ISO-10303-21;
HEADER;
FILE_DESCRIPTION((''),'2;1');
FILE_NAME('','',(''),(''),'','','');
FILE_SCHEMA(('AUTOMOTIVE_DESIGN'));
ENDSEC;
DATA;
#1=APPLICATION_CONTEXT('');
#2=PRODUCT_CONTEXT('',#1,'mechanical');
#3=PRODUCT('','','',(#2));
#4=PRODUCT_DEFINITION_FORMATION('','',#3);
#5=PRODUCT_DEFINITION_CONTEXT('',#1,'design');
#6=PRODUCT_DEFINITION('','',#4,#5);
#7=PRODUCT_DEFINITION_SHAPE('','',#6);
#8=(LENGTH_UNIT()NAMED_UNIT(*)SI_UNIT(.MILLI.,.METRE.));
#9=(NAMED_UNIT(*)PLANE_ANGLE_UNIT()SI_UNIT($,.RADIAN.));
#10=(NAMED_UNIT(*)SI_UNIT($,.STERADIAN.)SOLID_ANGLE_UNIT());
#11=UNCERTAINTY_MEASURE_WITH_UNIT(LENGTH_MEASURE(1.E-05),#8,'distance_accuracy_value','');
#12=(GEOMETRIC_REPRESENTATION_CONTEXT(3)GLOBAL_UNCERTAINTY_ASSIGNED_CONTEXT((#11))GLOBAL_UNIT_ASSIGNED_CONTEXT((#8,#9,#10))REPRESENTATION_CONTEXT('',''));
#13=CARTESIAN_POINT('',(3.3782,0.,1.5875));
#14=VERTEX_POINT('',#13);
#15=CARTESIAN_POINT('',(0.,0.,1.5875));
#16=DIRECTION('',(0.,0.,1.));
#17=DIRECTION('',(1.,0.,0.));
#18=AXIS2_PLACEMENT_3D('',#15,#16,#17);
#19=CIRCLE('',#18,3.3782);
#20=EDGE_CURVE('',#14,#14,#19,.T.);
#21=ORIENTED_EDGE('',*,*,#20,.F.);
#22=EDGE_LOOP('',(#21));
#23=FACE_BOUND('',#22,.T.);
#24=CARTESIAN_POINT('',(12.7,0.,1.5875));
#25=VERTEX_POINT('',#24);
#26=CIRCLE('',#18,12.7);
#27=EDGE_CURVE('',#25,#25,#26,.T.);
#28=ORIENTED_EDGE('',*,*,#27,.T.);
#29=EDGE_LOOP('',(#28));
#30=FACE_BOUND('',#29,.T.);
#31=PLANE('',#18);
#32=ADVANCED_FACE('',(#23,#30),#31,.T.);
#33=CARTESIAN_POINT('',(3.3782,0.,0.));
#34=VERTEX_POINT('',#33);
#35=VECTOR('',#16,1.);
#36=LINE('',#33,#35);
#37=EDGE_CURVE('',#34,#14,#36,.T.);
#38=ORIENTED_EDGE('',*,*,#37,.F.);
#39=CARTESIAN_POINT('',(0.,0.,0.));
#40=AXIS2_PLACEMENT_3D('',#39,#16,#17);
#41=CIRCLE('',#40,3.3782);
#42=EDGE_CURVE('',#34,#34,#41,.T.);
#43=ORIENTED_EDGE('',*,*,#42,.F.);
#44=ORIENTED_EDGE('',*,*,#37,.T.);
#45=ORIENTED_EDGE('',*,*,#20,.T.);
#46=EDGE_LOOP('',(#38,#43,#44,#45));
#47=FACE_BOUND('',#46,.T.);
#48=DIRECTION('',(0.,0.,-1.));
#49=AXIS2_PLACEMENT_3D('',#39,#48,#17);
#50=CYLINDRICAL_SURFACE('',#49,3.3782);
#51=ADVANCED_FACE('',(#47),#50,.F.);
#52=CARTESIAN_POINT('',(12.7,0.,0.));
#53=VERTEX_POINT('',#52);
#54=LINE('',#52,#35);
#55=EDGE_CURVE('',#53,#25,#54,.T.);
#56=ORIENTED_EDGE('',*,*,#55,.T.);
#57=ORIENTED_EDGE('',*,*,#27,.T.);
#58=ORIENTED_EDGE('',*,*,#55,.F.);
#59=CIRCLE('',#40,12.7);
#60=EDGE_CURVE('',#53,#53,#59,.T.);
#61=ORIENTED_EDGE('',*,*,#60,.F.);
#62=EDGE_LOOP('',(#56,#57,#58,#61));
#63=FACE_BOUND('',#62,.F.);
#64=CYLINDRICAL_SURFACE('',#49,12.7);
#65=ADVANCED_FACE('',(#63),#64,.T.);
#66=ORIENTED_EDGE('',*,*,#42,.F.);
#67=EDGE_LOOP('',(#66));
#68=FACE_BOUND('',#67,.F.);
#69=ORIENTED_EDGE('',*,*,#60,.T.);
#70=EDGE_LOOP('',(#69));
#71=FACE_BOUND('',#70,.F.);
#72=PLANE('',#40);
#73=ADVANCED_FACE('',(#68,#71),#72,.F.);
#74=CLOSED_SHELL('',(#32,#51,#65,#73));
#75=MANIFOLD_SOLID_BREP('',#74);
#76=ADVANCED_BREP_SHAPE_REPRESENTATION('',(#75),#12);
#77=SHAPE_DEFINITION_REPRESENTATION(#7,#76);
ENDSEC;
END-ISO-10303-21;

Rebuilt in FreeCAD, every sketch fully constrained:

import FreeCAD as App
import Part
import Sketcher
from FreeCAD import Vector
Q = App.Units.Quantity

doc = App.newDocument("Part")
body = doc.addObject("PartDesign::Body", "Body")

sketch1 = body.newObject("Sketcher::SketchObject", "Sketch")
sketch1.AttachmentSupport = (doc.getObject("XY_Plane"), [""])
sketch1.MapMode = "FlatFace"
sketch1.addGeometry([
    Part.Circle(Vector(0, 0, 0), Vector(0, 0, 1), 12.7),
    Part.Circle(Vector(0, 0, 0), Vector(0, 0, 1), 3.4),
], False)
sketch1.addConstraint([
    Sketcher.Constraint("Coincident", 0, 3, -1, 1),
    Sketcher.Constraint("Coincident", 1, 3, -1, 1),
    Sketcher.Constraint("Diameter", 0, Q("1 in")),
    Sketcher.Constraint("Diameter", 1, Q("0.266 in")),
])
pad1 = body.newObject("PartDesign::Pad", "Pad")
pad1.Profile = sketch1
pad1.Length = Q("0.0625 in")

doc.recompute()
